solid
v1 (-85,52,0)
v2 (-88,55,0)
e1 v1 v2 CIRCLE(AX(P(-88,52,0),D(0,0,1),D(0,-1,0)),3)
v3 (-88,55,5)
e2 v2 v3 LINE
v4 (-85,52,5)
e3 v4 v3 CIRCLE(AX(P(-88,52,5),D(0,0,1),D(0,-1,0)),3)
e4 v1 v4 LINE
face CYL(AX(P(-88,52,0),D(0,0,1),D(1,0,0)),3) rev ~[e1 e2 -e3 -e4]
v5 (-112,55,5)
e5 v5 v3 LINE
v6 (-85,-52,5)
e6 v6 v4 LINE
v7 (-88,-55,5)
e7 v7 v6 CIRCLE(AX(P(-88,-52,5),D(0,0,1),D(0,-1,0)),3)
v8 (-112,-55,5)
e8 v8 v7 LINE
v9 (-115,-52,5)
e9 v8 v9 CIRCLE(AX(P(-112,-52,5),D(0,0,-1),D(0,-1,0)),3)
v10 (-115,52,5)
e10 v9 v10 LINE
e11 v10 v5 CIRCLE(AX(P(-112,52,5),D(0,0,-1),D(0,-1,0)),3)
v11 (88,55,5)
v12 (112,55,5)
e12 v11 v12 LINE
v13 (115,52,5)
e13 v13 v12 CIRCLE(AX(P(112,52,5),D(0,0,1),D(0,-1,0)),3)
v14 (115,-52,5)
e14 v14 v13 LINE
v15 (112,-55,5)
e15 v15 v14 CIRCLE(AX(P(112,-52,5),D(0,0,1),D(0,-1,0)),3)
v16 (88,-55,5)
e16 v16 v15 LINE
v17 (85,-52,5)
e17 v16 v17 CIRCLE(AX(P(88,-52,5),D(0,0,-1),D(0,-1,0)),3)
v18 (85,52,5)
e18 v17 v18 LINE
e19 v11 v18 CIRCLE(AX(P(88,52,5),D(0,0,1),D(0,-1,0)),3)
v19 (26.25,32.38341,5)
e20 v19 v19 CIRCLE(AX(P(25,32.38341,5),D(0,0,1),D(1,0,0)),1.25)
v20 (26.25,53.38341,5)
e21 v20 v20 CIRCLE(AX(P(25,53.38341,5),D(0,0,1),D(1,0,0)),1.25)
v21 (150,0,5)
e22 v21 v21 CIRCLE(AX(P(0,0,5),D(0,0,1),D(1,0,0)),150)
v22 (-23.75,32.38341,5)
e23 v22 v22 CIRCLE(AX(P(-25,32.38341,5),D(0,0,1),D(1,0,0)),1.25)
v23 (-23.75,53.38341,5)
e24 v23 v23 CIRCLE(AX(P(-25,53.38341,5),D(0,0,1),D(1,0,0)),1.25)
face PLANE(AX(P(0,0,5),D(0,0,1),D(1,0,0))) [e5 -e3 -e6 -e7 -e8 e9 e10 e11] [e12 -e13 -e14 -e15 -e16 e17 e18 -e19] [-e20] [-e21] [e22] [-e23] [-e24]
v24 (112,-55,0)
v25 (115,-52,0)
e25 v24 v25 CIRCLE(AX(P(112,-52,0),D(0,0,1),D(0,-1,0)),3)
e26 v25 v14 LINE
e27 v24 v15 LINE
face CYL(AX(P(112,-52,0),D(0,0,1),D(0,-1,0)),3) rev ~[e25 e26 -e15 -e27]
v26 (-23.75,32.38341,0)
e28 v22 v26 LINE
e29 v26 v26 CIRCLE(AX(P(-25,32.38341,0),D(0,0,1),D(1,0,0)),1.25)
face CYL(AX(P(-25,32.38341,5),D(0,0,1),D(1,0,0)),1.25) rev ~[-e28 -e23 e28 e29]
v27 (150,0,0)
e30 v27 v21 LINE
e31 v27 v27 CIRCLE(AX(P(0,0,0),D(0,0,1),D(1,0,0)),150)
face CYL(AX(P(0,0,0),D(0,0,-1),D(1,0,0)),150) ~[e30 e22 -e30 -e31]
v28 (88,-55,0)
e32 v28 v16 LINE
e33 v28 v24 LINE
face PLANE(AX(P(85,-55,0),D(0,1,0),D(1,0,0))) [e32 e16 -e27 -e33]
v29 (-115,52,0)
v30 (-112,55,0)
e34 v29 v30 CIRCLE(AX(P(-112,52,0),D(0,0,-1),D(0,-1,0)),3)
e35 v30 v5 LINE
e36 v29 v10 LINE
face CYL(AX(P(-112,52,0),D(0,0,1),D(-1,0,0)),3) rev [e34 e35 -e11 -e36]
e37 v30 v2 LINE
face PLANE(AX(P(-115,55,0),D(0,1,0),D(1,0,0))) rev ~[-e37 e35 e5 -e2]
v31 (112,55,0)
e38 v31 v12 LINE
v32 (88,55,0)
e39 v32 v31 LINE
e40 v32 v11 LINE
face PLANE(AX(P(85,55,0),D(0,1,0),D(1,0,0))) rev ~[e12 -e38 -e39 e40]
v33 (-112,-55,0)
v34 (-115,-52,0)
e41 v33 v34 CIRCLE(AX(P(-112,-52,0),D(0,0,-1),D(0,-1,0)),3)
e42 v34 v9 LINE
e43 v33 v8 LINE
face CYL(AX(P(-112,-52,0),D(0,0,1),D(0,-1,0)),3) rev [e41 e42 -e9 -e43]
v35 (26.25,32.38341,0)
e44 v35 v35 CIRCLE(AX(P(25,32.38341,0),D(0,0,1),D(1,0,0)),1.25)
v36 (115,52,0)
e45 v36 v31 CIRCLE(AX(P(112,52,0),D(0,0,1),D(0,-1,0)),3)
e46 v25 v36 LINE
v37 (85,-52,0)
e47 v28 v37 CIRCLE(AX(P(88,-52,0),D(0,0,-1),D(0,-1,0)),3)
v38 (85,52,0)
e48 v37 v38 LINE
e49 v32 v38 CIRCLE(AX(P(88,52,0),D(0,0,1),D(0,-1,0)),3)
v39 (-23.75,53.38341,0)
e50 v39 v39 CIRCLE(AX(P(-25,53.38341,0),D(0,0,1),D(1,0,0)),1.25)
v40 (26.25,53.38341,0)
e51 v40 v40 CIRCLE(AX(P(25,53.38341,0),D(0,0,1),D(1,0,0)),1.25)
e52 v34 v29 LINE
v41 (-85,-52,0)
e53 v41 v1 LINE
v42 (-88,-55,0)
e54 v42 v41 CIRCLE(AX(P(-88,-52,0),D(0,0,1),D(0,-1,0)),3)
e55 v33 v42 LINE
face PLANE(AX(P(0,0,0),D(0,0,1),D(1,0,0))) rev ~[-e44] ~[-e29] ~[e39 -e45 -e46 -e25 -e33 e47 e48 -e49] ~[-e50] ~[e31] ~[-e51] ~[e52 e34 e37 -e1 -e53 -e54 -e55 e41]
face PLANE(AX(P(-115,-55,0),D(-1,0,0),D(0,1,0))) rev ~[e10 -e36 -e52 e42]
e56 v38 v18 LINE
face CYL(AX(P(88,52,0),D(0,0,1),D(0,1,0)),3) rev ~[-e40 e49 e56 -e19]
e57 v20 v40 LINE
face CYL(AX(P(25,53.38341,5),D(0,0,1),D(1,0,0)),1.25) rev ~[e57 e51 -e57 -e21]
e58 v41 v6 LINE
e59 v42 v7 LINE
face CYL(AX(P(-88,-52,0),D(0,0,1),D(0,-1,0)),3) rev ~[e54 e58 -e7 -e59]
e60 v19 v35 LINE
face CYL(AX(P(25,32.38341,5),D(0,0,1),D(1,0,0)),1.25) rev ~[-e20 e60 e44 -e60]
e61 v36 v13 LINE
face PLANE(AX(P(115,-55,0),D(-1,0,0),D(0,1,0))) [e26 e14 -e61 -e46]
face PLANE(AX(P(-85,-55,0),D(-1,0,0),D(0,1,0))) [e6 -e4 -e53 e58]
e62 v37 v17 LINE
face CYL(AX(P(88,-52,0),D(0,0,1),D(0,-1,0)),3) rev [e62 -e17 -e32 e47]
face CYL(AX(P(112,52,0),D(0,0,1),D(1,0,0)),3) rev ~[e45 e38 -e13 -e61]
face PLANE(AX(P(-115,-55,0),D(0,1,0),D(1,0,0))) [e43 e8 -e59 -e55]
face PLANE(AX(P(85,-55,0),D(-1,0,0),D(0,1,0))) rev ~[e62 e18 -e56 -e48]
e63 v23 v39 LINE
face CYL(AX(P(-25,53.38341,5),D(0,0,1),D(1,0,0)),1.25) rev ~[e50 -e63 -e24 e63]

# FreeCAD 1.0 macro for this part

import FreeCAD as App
import Part
import Sketcher
from FreeCAD import Vector


def edges_at(feature, points):
    """Names of the edges that pass closest to the given points."""
    edges = feature.Shape.Edges
    near = lambda p: min(range(len(edges)), key=lambda i: edges[i].distToShape(Part.Vertex(*p))[0])
    return sorted({f"Edge{near(p) + 1}" for p in points})


def add_polygon(sketch, points):
    """Adds a closed chain of lines whose ends are joined by coincident constraints."""
    first, n = sketch.GeometryCount, len(points)
    for a, b in zip(points, points[1:] + points[:1]):
        sketch.addGeometry(Part.LineSegment(App.Vector(*a, 0), App.Vector(*b, 0)), False)
    for i in range(n):
        sketch.addConstraint(Sketcher.Constraint("Coincident", first + i, 2, first + (i + 1) % n, 1))

doc = App.newDocument("Part")
params = doc.addObject("Spreadsheet::Sheet", "Params")
for row, (alias, value) in enumerate([
    ("sketch1_diameter", "300 mm"),
    ("sketch1_width", "30 mm"),
    ("sketch1_height", "110 mm"),
    ("pad1_length", "5 mm"),
    ("fillet_radius", "3 mm"),
    ("sketch2_diameter", "2.5 mm"),
], start=1):
    params.set(f"A{row}", alias)
    params.set(f"B{row}", "=" + value)
    params.setAlias(f"B{row}", alias)

body = doc.addObject("PartDesign::Body", "Body")

# Sketch on XY plane
sketch1 = body.newObject("Sketcher::SketchObject", "Sketch")
sketch1.AttachmentSupport = (doc.getObject("XY_Plane"), [""])
sketch1.MapMode = "FlatFace"
sketch1.addGeometry(Part.Circle(Vector(0, 0, 0), Vector(0, 0, 1), 150), False)  # 0
add_polygon(sketch1, [(-85, -55), (-115, -55), (-115, 55), (-85, 55)])  # lines 1-4
add_polygon(sketch1, [(115, -55), (85, -55), (85, 55), (115, 55)])  # lines 5-8
sketch1.addConstraint([
    Sketcher.Constraint("Horizontal", 1),
    Sketcher.Constraint("Vertical", 2),
    Sketcher.Constraint("Horizontal", 3),
    Sketcher.Constraint("Vertical", 4),
    Sketcher.Constraint("Horizontal", 5),
    Sketcher.Constraint("Vertical", 6),
    Sketcher.Constraint("Horizontal", 7),
    Sketcher.Constraint("Vertical", 8),
    Sketcher.Constraint("Coincident", 0, 3, -1, 1),
    Sketcher.Constraint("Symmetric", 3, 2, 5, 2, -1, 1),
    Sketcher.Constraint("Symmetric", 1, 2, 7, 2, -1, 1),
    Sketcher.Constraint("Horizontal", 4, 2, 5, 2),
    Sketcher.Constraint("Diameter", 0, 300.0),
    Sketcher.Constraint("DistanceX", 1, 2, 1, 1, 30.0),
    Sketcher.Constraint("DistanceY", 2, 1, 2, 2, 110.0),
    Sketcher.Constraint("DistanceX", 1, 2, -1, 1, 115.0),
])
sketch1.setExpression("Constraints[20]", "Params.sketch1_diameter")
sketch1.setExpression("Constraints[21]", "Params.sketch1_width")
sketch1.setExpression("Constraints[22]", "Params.sketch1_height")
pad1 = body.newObject("PartDesign::Pad", "Pad")
pad1.Profile = sketch1
pad1.setExpression("Length", "Params.pad1_length")
doc.recompute()

fillet = body.newObject("PartDesign::Fillet", "Fillet")
fillet.Base = (pad1, edges_at(pad1, [
    (-115, -55, 2.5),
    (85, -55, 2.5),
    (115, -55, 2.5),
    (-85, -55, 2.5),
    (115, 55, 2.5),
    (-85, 55, 2.5),
    (-115, 55, 2.5),
    (85, 55, 2.5),
]))
fillet.setExpression("Radius", "Params.fillet_radius")

# Sketch on XY plane
sketch2 = body.newObject("Sketcher::SketchObject", "Sketch001")
sketch2.AttachmentSupport = (doc.getObject("XY_Plane"), [""])
sketch2.MapMode = "FlatFace"
sketch2.AttachmentOffset = App.Placement(Vector(0, 0, 5), App.Rotation())
sketch2.addGeometry([
    Part.Circle(Vector(-25, 53.4, 0), Vector(0, 0, 1), 1.2),
    Part.Circle(Vector(25, 53.4, 0), Vector(0, 0, 1), 1.2),
    Part.Circle(Vector(-25, 32.4, 0), Vector(0, 0, 1), 1.2),
    Part.Circle(Vector(25, 32.4, 0), Vector(0, 0, 1), 1.2),
], False)
sketch2.addConstraint([
    Sketcher.Constraint("Equal", 0, 1),
    Sketcher.Constraint("Equal", 1, 2),
    Sketcher.Constraint("Equal", 2, 3),
    Sketcher.Constraint("Symmetric", 0, 3, 1, 3, -2),
    Sketcher.Constraint("Symmetric", 2, 3, 3, 3, -2),
    Sketcher.Constraint("Vertical", 0, 3, 2, 3),
    Sketcher.Constraint("Diameter", 0, 2.5),
    Sketcher.Constraint("DistanceX", 0, 3, -1, 1, 25.0),
    Sketcher.Constraint("DistanceY", 2, 3, 0, 3, 21.0),
    Sketcher.Constraint("DistanceY", -1, 1, 0, 3, 53.38341),
])
sketch2.setExpression("Constraints[6]", "Params.sketch2_diameter")
pocket1 = body.newObject("PartDesign::Pocket", "Pocket")
pocket1.Profile = sketch2
pocket1.Type = "ThroughAll"

doc.recompute()
